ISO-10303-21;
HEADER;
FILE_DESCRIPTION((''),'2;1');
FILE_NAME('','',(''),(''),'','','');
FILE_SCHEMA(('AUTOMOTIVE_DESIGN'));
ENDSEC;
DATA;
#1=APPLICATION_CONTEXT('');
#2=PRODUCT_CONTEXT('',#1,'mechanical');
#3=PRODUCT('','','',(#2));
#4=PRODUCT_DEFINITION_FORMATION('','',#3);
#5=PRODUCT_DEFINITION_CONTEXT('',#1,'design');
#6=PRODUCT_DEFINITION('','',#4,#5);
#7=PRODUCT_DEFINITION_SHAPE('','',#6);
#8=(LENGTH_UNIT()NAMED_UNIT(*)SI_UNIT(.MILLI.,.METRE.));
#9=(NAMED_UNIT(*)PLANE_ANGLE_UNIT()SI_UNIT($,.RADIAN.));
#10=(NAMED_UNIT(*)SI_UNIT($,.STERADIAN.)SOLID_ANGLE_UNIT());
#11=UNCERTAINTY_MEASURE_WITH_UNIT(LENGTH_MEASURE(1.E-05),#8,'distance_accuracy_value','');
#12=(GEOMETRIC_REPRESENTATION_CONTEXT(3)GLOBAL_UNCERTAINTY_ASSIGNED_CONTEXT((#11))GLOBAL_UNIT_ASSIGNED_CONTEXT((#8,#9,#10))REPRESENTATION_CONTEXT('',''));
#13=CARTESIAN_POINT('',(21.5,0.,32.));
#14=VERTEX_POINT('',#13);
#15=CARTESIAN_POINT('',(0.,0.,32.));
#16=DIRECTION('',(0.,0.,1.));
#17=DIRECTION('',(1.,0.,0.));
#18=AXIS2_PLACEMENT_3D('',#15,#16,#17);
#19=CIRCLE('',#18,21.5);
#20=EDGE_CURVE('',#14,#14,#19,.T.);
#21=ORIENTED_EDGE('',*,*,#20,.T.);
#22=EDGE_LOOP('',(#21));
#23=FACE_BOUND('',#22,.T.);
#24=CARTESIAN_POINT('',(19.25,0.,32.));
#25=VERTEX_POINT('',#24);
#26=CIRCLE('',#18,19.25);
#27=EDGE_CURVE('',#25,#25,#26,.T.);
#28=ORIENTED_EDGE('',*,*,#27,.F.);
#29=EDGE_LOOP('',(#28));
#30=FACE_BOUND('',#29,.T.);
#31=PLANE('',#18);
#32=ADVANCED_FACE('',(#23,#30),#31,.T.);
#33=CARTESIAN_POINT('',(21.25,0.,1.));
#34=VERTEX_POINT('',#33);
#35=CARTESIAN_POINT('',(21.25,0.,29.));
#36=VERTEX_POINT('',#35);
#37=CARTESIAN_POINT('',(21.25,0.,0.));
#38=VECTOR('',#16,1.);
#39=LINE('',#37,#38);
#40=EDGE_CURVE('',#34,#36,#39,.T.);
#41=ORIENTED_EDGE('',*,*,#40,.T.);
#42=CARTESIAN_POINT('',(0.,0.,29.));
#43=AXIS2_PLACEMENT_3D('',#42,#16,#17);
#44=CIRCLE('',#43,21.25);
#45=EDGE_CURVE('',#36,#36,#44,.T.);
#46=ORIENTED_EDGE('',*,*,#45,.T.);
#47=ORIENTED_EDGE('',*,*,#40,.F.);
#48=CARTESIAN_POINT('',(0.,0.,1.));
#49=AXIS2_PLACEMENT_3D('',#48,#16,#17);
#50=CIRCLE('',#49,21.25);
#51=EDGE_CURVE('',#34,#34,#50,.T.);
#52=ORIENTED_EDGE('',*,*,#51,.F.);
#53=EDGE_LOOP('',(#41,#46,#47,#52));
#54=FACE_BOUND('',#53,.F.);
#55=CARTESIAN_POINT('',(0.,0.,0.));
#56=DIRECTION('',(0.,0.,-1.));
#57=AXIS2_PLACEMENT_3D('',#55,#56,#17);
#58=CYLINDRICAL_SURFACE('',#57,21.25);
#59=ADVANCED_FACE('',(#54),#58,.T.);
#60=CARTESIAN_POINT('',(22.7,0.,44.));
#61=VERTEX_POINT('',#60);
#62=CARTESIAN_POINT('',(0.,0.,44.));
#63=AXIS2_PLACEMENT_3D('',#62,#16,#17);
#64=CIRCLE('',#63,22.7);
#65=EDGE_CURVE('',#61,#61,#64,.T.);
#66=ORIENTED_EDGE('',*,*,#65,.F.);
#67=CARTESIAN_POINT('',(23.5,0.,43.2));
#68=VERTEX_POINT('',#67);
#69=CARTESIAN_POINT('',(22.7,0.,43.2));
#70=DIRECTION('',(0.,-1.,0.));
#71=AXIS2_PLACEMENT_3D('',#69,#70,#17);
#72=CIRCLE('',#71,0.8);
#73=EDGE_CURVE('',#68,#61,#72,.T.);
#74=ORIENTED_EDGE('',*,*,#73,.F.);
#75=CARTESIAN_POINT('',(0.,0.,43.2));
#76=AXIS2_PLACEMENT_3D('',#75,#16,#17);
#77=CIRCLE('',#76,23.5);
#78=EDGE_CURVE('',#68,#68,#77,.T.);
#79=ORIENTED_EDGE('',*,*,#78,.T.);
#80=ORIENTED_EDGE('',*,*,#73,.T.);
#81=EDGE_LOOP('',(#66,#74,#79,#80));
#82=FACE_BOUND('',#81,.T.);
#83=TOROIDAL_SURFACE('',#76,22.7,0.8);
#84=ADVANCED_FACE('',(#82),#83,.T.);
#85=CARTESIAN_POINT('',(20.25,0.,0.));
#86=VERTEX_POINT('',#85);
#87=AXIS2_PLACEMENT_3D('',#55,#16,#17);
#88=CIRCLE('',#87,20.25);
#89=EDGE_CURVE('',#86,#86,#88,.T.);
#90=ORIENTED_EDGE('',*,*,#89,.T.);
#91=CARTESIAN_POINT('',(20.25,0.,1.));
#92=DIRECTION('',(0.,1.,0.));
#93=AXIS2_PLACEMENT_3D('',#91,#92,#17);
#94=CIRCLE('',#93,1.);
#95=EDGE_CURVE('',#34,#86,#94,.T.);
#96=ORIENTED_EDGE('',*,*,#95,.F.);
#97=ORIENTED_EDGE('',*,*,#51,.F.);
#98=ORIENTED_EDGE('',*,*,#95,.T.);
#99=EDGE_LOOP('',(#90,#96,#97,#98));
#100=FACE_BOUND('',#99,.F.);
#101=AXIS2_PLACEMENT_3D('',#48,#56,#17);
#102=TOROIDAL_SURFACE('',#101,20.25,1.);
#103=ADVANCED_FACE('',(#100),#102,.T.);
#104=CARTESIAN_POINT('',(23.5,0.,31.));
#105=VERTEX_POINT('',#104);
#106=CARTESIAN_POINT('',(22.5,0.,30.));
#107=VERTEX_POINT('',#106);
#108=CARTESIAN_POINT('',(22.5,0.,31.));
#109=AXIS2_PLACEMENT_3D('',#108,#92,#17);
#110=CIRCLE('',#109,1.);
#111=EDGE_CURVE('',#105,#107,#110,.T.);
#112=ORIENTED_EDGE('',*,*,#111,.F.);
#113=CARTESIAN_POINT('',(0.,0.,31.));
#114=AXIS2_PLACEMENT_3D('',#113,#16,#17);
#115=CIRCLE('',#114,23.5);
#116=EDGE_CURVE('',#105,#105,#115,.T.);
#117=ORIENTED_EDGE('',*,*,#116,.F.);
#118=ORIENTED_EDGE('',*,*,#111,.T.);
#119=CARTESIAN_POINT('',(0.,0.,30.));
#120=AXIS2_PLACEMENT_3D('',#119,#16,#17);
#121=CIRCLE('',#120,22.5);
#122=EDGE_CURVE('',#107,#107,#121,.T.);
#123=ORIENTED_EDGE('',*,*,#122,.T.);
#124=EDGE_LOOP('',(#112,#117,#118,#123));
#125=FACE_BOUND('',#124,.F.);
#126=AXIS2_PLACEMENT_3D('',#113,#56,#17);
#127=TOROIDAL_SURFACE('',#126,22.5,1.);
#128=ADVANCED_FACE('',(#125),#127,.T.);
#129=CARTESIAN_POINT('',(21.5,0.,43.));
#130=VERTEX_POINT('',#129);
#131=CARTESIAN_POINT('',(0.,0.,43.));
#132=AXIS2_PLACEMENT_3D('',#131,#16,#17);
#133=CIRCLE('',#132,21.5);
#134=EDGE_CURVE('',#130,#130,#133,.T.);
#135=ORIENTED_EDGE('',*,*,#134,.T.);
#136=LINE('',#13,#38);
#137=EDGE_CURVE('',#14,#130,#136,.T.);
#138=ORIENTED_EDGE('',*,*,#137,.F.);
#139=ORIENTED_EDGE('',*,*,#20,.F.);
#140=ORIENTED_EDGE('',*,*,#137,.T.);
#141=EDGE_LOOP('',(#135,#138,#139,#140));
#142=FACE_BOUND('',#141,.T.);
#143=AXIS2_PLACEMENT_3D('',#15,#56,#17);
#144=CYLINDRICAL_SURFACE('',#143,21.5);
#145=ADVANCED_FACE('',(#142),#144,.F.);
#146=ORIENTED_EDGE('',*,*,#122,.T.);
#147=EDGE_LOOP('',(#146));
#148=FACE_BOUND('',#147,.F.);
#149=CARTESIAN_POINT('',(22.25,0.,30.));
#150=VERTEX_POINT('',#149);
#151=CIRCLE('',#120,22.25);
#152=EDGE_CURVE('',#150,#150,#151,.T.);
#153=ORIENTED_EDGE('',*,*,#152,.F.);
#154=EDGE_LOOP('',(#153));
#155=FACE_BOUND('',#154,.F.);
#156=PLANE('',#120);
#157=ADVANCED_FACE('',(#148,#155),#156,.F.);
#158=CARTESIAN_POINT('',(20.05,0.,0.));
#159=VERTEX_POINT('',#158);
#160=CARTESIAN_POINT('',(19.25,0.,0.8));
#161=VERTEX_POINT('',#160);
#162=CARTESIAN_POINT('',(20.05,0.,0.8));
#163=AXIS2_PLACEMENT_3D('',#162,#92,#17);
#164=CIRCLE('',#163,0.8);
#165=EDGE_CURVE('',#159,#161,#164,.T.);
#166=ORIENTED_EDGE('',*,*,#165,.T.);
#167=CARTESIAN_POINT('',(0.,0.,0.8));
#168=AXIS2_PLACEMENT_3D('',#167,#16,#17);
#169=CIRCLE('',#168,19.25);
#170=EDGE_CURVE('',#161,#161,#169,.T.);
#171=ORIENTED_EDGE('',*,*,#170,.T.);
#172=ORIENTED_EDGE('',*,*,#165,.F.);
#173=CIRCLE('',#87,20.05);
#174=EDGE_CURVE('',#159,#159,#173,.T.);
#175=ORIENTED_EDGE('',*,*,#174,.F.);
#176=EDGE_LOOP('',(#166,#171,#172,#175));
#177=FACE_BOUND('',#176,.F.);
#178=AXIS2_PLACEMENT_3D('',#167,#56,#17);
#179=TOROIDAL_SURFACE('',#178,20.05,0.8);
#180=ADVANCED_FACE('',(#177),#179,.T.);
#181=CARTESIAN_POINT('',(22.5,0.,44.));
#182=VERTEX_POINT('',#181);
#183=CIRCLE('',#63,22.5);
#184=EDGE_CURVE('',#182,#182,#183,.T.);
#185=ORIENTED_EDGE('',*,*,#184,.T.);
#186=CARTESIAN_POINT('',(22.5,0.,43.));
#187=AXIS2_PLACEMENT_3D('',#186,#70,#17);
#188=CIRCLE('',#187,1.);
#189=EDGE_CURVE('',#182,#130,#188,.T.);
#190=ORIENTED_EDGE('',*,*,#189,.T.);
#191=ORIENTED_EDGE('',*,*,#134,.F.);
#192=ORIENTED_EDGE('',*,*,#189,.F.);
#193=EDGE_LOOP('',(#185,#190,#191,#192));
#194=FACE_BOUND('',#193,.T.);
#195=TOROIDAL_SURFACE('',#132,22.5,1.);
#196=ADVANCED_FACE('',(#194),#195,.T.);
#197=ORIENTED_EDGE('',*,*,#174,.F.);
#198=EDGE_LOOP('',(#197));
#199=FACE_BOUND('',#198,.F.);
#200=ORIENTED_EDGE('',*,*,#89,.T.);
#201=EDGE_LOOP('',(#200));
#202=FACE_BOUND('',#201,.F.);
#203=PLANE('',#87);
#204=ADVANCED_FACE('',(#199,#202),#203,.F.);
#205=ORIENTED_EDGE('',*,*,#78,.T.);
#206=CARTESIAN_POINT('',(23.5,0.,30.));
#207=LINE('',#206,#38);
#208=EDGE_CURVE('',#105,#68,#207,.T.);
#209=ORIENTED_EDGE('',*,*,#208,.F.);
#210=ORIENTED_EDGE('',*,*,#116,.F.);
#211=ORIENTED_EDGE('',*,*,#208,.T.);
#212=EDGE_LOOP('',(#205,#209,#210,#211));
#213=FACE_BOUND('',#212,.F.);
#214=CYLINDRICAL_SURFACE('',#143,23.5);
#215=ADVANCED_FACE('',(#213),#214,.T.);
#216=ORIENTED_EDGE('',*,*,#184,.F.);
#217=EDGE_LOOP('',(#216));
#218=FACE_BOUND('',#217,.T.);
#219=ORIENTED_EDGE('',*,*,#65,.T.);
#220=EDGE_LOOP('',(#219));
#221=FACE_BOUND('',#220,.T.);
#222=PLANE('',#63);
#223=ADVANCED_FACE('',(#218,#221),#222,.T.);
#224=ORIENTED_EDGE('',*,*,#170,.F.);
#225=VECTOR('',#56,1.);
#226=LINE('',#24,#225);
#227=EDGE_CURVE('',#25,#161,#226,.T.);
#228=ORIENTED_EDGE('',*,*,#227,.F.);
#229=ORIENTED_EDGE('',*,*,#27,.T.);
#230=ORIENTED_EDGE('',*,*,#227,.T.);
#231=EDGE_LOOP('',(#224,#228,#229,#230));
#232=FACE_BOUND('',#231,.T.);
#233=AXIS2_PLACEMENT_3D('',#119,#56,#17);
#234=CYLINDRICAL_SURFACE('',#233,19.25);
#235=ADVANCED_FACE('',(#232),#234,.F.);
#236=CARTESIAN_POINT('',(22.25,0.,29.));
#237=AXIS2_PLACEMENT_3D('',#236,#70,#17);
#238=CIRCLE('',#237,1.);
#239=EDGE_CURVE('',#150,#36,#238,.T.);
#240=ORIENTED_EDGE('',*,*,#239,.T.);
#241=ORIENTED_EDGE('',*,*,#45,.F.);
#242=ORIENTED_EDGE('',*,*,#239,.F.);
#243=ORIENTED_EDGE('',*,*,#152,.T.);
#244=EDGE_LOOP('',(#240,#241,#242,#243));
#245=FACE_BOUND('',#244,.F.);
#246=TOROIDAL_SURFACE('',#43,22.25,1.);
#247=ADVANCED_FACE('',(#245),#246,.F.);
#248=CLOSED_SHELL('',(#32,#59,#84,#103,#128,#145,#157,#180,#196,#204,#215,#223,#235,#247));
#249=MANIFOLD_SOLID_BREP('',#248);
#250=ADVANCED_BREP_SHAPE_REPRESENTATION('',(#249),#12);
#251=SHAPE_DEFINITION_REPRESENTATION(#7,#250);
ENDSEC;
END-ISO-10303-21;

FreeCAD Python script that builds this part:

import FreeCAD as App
import Part
import Sketcher
Q = App.Units.Quantity


def edges_at(feature, points):
    """Names of the edges that pass closest to the given points."""
    edges = feature.Shape.Edges
    near = lambda p: min(range(len(edges)), key=lambda i: edges[i].distToShape(Part.Vertex(*p))[0])
    return sorted({f"Edge{near(p) + 1}" for p in points})

doc = App.newDocument("Part")
body = doc.addObject("PartDesign::Body", "Body")

sketch1 = doc.addObject("Sketcher::SketchObject", "Sketch")
body.addObject(sketch1)
sketch1.AttachmentSupport = (doc.XY_Plane, [""])
sketch1.MapMode = "FlatFace"
sketch1.addGeometry([
    Part.Circle(App.Vector(0, 0, 0), App.Vector(0, 0, 1), 21),
    Part.Circle(App.Vector(0, 0, 0), App.Vector(0, 0, 1), 19),
], False)
sketch1.addConstraint([
    Sketcher.Constraint("Coincident", 0, 3, -1, 1),
    Sketcher.Constraint("Coincident", 1, 3, -1, 1),
    Sketcher.Constraint("Diameter", 0, Q("42.5 mm")),
    Sketcher.Constraint("Diameter", 1, Q("38.5 mm")),
])
pad1 = doc.addObject("PartDesign::Pad", "Pad")
body.addObject(pad1)
pad1.Profile = sketch1
pad1.Length = 30

sketch2 = doc.addObject("Sketcher::SketchObject", "Sketch001")
body.addObject(sketch2)
sketch2.AttachmentSupport = (doc.XY_Plane, [""])
sketch2.MapMode = "FlatFace"
sketch2.AttachmentOffset = App.Placement(App.Vector(0, 0, 30), App.Rotation())
sketch2.addGeometry([
    Part.Circle(App.Vector(0, 0, 0), App.Vector(0, 0, 1), 24),
    Part.Circle(App.Vector(0, 0, 0), App.Vector(0, 0, 1), 19),
], False)
sketch2.addConstraint([
    Sketcher.Constraint("Coincident", 0, 3, -1, 1),
    Sketcher.Constraint("Coincident", 1, 3, -1, 1),
    Sketcher.Constraint("Diameter", 0, Q("47 mm")),
    Sketcher.Constraint("Diameter", 1, Q("38.5 mm")),
])
pad2 = doc.addObject("PartDesign::Pad", "Pad001")
body.addObject(pad2)
pad2.Profile = sketch2
pad2.Length = 2

sketch3 = doc.addObject("Sketcher::SketchObject", "Sketch002")
body.addObject(sketch3)
sketch3.AttachmentSupport = (doc.XY_Plane, [""])
sketch3.MapMode = "FlatFace"
sketch3.AttachmentOffset = App.Placement(App.Vector(0, 0, 32), App.Rotation())
sketch3.addGeometry([
    Part.Circle(App.Vector(0, 0, 0), App.Vector(0, 0, 1), 24),
    Part.Circle(App.Vector(0, 0, 0), App.Vector(0, 0, 1), 22),
], False)
sketch3.addConstraint([
    Sketcher.Constraint("Coincident", 0, 3, -1, 1),
    Sketcher.Constraint("Coincident", 1, 3, -1, 1),
    Sketcher.Constraint("Diameter", 0, Q("47 mm")),
    Sketcher.Constraint("Diameter", 1, Q("43 mm")),
])
pad3 = doc.addObject("PartDesign::Pad", "Pad002")
body.addObject(pad3)
pad3.Profile = sketch3
pad3.Length = 12
doc.recompute()

fillet = doc.addObject("PartDesign::Fillet", "Fillet")
body.addObject(fillet)
fillet.Base = (pad3, edges_at(pad3, [(-23.5, 0, 44)]))
fillet.Radius = 0.8
doc.recompute()

fillet2 = doc.addObject("PartDesign::Fillet", "Fillet001")
body.addObject(fillet2)
fillet2.Base = (fillet, edges_at(fillet, [(-21.5, 0, 44)]))
fillet2.Radius = 1
doc.recompute()

fillet3 = doc.addObject("PartDesign::Fillet", "Fillet002")
body.addObject(fillet3)
fillet3.Base = (fillet2, edges_at(fillet2, [(-23.5, 0, 30)]))
fillet3.Radius = 1
doc.recompute()

fillet4 = doc.addObject("PartDesign::Fillet", "Fillet003")
body.addObject(fillet4)
fillet4.Base = (fillet3, edges_at(fillet3, [(-21.25, 0, 30)]))
fillet4.Radius = 1
doc.recompute()

fillet5 = doc.addObject("PartDesign::Fillet", "Fillet004")
body.addObject(fillet5)
fillet5.Base = (fillet4, edges_at(fillet4, [(-21.25, 0, 0)]))
fillet5.Radius = 1
doc.recompute()

fillet6 = doc.addObject("PartDesign::Fillet", "Fillet005")
body.addObject(fillet6)
fillet6.Base = (fillet5, edges_at(fillet5, [(-20.25, 0, 0), (-19.25, 0, 0)]))
fillet6.Radius = 0.8

doc.recompute()
